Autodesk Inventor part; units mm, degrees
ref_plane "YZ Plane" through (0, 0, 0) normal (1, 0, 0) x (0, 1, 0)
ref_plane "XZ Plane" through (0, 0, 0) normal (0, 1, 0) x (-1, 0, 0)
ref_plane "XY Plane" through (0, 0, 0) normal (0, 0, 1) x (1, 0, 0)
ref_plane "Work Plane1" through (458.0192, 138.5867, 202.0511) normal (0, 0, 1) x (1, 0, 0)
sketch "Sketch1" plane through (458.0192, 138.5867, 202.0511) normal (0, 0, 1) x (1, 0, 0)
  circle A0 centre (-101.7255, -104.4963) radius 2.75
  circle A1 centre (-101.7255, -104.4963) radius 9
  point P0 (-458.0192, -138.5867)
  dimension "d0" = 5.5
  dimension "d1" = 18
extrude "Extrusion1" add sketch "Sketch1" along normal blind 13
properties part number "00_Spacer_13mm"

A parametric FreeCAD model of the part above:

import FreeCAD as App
import Part
import Sketcher

doc = App.newDocument("Part")
body = doc.addObject("PartDesign::Body", "Body")

# Sketch on XY plane
sketch1 = doc.addObject("Sketcher::SketchObject", "Sketch")
body.addObject(sketch1)
sketch1.AttachmentSupport = (doc.XY_Plane, [""])
sketch1.MapMode = "FlatFace"
sketch1.AttachmentOffset = App.Placement(App.Vector(0, 0, 202.0511), App.Rotation())
sketch1.addGeometry([
    Part.Circle(App.Vector(356.3, 34.1, 0), App.Vector(0, 0, 1), 9),
    Part.Circle(App.Vector(356.3, 34.1, 0), App.Vector(0, 0, 1), 2.8),
], False)
sketch1.addConstraint([
    Sketcher.Constraint("Coincident", 1, 3, 0, 3),
    Sketcher.Constraint("Diameter", 0, 18.0),
    Sketcher.Constraint("Diameter", 1, 5.5),
    Sketcher.Constraint("DistanceX", -1, 1, 0, 3, 356.2937),
    Sketcher.Constraint("DistanceY", -1, 1, 0, 3, 34.0904),
])
pad1 = doc.addObject("PartDesign::Pad", "Pad")
body.addObject(pad1)
pad1.Profile = sketch1
pad1.Length = 13

doc.recompute()
